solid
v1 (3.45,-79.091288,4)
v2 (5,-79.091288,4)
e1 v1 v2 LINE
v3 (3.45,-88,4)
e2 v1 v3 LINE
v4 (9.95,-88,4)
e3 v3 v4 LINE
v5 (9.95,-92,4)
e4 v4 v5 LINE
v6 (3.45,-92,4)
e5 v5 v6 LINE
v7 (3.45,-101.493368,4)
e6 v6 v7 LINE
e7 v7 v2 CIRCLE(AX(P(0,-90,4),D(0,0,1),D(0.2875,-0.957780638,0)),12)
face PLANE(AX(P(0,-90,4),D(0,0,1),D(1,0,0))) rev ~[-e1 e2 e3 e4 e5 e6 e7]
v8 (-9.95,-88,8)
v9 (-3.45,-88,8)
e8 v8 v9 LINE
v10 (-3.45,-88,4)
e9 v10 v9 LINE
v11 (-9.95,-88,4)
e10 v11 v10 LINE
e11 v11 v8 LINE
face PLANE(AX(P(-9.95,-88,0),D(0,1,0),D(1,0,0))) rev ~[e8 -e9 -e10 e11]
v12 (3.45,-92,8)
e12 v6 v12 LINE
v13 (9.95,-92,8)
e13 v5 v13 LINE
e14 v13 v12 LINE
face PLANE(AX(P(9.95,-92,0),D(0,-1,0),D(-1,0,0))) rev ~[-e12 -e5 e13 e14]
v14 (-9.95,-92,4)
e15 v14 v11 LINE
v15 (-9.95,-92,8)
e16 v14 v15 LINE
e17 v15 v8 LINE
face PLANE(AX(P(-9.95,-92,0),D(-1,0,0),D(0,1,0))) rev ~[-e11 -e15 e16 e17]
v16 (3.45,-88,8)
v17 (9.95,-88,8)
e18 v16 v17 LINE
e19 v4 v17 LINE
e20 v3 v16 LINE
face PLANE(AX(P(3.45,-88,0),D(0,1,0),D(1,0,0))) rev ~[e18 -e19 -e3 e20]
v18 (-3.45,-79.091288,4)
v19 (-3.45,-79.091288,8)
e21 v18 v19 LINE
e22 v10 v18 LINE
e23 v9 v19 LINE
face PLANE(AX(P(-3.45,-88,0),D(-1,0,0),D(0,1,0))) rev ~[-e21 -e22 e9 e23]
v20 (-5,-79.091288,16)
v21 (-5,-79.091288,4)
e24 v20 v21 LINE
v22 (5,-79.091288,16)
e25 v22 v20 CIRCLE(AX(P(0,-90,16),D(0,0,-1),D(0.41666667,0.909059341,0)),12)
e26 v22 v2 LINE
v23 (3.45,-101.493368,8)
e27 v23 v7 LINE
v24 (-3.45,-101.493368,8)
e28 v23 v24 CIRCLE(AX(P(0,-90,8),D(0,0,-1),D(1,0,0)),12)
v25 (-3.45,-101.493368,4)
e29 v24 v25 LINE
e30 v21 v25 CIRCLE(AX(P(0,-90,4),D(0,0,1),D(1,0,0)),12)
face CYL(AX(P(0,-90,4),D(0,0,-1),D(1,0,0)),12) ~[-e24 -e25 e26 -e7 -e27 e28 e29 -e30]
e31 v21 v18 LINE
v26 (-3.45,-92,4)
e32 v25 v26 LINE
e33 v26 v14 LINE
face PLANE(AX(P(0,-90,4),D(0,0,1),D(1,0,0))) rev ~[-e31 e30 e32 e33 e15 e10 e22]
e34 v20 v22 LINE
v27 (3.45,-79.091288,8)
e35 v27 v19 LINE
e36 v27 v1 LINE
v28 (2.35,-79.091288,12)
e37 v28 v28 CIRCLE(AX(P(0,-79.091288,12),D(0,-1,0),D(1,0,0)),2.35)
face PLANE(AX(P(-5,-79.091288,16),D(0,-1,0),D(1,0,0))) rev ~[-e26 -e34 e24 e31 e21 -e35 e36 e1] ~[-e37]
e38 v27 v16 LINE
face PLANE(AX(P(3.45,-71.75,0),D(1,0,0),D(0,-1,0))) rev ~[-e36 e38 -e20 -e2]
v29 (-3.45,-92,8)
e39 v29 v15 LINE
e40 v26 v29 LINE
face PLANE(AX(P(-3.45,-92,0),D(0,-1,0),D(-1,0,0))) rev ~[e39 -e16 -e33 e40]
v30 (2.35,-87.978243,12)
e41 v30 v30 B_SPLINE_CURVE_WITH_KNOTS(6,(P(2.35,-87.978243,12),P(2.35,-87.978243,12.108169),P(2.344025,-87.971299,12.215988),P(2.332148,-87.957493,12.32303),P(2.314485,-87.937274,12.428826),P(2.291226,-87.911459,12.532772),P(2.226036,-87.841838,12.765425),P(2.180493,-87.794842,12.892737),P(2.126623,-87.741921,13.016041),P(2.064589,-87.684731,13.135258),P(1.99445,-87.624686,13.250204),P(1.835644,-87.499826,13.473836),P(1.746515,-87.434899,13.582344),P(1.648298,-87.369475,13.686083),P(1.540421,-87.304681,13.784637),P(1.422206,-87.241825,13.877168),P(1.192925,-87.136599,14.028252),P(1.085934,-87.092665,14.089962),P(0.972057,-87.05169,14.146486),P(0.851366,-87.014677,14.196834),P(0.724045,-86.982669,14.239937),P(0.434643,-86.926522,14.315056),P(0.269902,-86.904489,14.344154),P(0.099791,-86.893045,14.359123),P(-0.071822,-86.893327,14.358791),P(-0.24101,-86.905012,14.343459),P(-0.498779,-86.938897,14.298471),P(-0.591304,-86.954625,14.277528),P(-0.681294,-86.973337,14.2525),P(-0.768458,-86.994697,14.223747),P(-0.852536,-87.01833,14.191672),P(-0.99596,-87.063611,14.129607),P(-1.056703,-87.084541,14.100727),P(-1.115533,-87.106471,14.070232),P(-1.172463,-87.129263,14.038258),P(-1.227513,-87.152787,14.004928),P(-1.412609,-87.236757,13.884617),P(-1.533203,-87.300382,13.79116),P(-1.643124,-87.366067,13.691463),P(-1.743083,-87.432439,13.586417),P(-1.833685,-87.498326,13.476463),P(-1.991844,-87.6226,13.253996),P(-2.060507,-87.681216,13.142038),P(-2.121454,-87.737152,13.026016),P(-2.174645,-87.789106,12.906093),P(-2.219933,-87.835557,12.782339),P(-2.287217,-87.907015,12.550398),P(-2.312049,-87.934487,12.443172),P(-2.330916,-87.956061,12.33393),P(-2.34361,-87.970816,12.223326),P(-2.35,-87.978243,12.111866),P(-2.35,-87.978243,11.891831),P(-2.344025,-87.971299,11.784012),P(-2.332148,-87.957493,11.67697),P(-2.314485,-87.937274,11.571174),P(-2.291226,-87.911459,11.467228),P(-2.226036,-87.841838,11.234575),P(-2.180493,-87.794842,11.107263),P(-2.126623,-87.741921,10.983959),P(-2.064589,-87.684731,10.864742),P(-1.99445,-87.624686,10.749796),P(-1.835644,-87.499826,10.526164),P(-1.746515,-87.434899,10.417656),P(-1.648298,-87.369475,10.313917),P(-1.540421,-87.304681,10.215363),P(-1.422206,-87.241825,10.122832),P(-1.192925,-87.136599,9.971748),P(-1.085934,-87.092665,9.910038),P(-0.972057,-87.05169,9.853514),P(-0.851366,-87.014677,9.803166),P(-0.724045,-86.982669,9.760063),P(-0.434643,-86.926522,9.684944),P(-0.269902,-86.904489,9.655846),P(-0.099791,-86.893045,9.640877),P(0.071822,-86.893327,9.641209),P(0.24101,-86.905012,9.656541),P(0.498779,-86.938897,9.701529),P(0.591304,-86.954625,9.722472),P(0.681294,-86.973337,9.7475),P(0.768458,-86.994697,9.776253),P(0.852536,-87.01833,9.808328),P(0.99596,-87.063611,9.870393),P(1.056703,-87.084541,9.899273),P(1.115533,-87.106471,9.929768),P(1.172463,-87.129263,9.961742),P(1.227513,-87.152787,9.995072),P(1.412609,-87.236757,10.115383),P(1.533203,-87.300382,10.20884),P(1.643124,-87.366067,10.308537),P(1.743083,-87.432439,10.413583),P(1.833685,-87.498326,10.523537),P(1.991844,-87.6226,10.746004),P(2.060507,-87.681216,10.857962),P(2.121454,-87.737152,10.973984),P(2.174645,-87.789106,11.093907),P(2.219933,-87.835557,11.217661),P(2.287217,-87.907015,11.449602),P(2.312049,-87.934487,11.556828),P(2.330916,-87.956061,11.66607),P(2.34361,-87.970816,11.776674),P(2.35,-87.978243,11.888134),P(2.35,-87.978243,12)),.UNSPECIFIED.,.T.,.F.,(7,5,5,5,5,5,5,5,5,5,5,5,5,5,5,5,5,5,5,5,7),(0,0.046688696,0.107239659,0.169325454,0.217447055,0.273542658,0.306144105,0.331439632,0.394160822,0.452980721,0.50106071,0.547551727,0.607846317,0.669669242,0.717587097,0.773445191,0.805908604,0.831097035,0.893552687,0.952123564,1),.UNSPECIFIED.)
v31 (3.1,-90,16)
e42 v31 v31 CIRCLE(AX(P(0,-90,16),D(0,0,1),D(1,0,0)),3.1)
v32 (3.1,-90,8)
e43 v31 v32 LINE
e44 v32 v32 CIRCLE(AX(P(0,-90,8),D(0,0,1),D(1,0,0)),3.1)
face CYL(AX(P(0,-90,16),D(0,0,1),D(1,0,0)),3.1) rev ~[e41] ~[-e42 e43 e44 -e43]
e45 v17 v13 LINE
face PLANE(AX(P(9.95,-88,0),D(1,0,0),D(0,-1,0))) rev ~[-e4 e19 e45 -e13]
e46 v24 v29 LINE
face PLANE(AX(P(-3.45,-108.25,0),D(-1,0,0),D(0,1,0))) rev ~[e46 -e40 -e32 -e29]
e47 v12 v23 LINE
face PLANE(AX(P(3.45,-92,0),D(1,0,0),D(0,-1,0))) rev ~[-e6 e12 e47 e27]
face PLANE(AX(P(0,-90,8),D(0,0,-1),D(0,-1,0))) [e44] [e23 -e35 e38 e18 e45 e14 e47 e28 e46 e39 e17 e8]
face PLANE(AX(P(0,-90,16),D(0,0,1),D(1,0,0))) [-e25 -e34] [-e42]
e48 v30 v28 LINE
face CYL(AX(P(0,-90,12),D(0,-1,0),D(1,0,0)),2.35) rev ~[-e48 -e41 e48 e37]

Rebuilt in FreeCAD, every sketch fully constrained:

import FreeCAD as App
import Part
import Sketcher
Q = App.Units.Quantity


def add_polygon(sketch, points):
    """Adds a closed chain of lines whose ends are joined by coincident constraints."""
    first, n = sketch.GeometryCount, len(points)
    for a, b in zip(points, points[1:] + points[:1]):
        sketch.addGeometry(Part.LineSegment(App.Vector(*a, 0), App.Vector(*b, 0)), False)
    for i in range(n):
        sketch.addConstraint(Sketcher.Constraint("Coincident", first + i, 2, first + (i + 1) % n, 1))

doc = App.newDocument("Part")
params = doc.addObject("Spreadsheet::Sheet", "Params")
for row, (alias, value) in enumerate([
    ("sketch1_height", "4 mm"),
    ("sketch1_width", "6.5 mm"),
    ("sketch1_width2", "6.9 mm"),
    ("sketch1_height2", "16.25 mm"),
    ("pad1_length", "4 mm"),
    ("sketch2_diameter", "24 mm"),
    ("pad2_length", "12 mm"),
    ("sketch3_height", "4 mm"),
    ("sketch3_width", "6.9 mm"),
    ("sketch3_width2", "6.5 mm"),
    ("sketch3_height2", "16.25 mm"),
    ("pocket1_length", "8 mm"),
    ("sketch4_diameter", "6.2 mm"),
    ("sketch5_diameter", "4.7 mm"),
    ("sketch6_width", "10 mm"),
], start=1):
    params.set(f"A{row}", alias)
    params.set(f"B{row}", "=" + value)
    params.setAlias(f"B{row}", alias)

body = doc.addObject("PartDesign::Body", "Body")

# Sketch on XY plane
sketch1 = body.newObject("Sketcher::SketchObject", "Sketch")
sketch1.AttachmentSupport = (doc.getObject("XY_Plane"), [""])
sketch1.MapMode = "FlatFace"
add_polygon(sketch1, [(-3.5, 18.2), (-3.5, 2), (-9.9, 2), (-9.9, -2), (-3.5, -2), (-3.5, -18.2), (3.5, -18.2), (3.5, -2), (9.9, -2), (9.9, 2), (3.5, 2), (3.5, 18.2)])  # lines 0-11
sketch1.addConstraint(Sketcher.Constraint("Vertical", 0))
sketch1.addConstraint(Sketcher.Constraint("Horizontal", 1))
sketch1.addConstraint(Sketcher.Constraint("Vertical", 2))
sketch1.addConstraint(Sketcher.Constraint("Horizontal", 3))
sketch1.addConstraint(Sketcher.Constraint("Vertical", 4))
sketch1.addConstraint(Sketcher.Constraint("Horizontal", 5))
sketch1.addConstraint(Sketcher.Constraint("Vertical", 6))
sketch1.addConstraint(Sketcher.Constraint("Horizontal", 7))
sketch1.addConstraint(Sketcher.Constraint("Vertical", 8))
sketch1.addConstraint(Sketcher.Constraint("Horizontal", 9))
sketch1.addConstraint(Sketcher.Constraint("Vertical", 10))
sketch1.addConstraint(Sketcher.Constraint("Horizontal", 11))
sketch1.addConstraint(Sketcher.Constraint("Symmetric", 0, 2, 6, 2, -1, 1))
sketch1.addConstraint(Sketcher.Constraint("Symmetric", 2, 2, 8, 2, -1, 1))
sketch1.addConstraint(Sketcher.Constraint("Symmetric", 4, 2, 10, 2, -1, 1))
sketch1.addConstraint(Sketcher.Constraint("Symmetric", 3, 2, 6, 2, -2))
sketch1.addConstraint(Sketcher.Constraint("DistanceY", 2, 2, 2, 1, Q("4 mm")))
sketch1.addConstraint(Sketcher.Constraint("DistanceX", 1, 2, 1, 1, Q("6.5 mm")))
sketch1.addConstraint(Sketcher.Constraint("DistanceX", 5, 1, 5, 2, Q("6.9 mm")))
sketch1.addConstraint(Sketcher.Constraint("DistanceY", 0, 2, 0, 1, Q("16.25 mm")))
sketch1.setExpression("Constraints[28]", "Params.sketch1_height")
sketch1.setExpression("Constraints[29]", "Params.sketch1_width")
sketch1.setExpression("Constraints[30]", "Params.sketch1_width2")
sketch1.setExpression("Constraints[31]", "Params.sketch1_height2")
pad1 = body.newObject("PartDesign::Pad", "Pad")
pad1.Profile = sketch1
pad1.setExpression("Length", "Params.pad1_length")

# Sketch on XY plane
sketch2 = body.newObject("Sketcher::SketchObject", "Sketch001")
sketch2.AttachmentSupport = (doc.getObject("XY_Plane"), [""])
sketch2.MapMode = "FlatFace"
sketch2.AttachmentOffset = App.Placement(App.Vector(0, 0, 4), App.Rotation())
sketch2.addGeometry(Part.Circle(App.Vector(0, 0, 0), App.Vector(0, 0, 1), 12), False)
sketch2.addConstraint(Sketcher.Constraint("Coincident", 0, 3, -1, 1))
sketch2.addConstraint(Sketcher.Constraint("Diameter", 0, Q("24 mm")))
sketch2.setExpression("Constraints[1]", "Params.sketch2_diameter")
pad2 = body.newObject("PartDesign::Pad", "Pad001")
pad2.Profile = sketch2
pad2.setExpression("Length", "Params.pad2_length")

# Sketch on XY plane
sketch3 = body.newObject("Sketcher::SketchObject", "Sketch002")
sketch3.AttachmentSupport = (doc.getObject("XY_Plane"), [""])
sketch3.MapMode = "FlatFace"
add_polygon(sketch3, [(-3.5, 2), (-3.5, 18.2), (3.5, 18.2), (3.5, 2), (9.9, 2), (9.9, -2), (3.5, -2), (3.5, -18.2), (-3.5, -18.2), (-3.5, -2), (-9.9, -2), (-9.9, 2)])  # lines 0-11
sketch3.addConstraint(Sketcher.Constraint("Vertical", 0))
sketch3.addConstraint(Sketcher.Constraint("Horizontal", 1))
sketch3.addConstraint(Sketcher.Constraint("Vertical", 2))
sketch3.addConstraint(Sketcher.Constraint("Horizontal", 3))
sketch3.addConstraint(Sketcher.Constraint("Vertical", 4))
sketch3.addConstraint(Sketcher.Constraint("Horizontal", 5))
sketch3.addConstraint(Sketcher.Constraint("Vertical", 6))
sketch3.addConstraint(Sketcher.Constraint("Horizontal", 7))
sketch3.addConstraint(Sketcher.Constraint("Vertical", 8))
sketch3.addConstraint(Sketcher.Constraint("Horizontal", 9))
sketch3.addConstraint(Sketcher.Constraint("Vertical", 10))
sketch3.addConstraint(Sketcher.Constraint("Horizontal", 11))
sketch3.addConstraint(Sketcher.Constraint("Symmetric", 0, 2, 6, 2, -1, 1))
sketch3.addConstraint(Sketcher.Constraint("Symmetric", 2, 2, 8, 2, -1, 1))
sketch3.addConstraint(Sketcher.Constraint("Symmetric", 4, 2, 10, 2, -1, 1))
sketch3.addConstraint(Sketcher.Constraint("Symmetric", 5, 2, 8, 2, -2))
sketch3.addConstraint(Sketcher.Constraint("DistanceY", 4, 2, 4, 1, Q("4 mm")))
sketch3.addConstraint(Sketcher.Constraint("DistanceX", 1, 1, 1, 2, Q("6.9 mm")))
sketch3.addConstraint(Sketcher.Constraint("DistanceX", 3, 1, 3, 2, Q("6.5 mm")))
sketch3.addConstraint(Sketcher.Constraint("DistanceY", 0, 1, 0, 2, Q("16.25 mm")))
sketch3.setExpression("Constraints[28]", "Params.sketch3_height")
sketch3.setExpression("Constraints[29]", "Params.sketch3_width")
sketch3.setExpression("Constraints[30]", "Params.sketch3_width2")
sketch3.setExpression("Constraints[31]", "Params.sketch3_height2")
pocket1 = body.newObject("PartDesign::Pocket", "Pocket")
pocket1.Profile = sketch3
pocket1.setExpression("Length", "Params.pocket1_length")
pocket1.Reversed = True

# Sketch on XY plane
sketch4 = body.newObject("Sketcher::SketchObject", "Sketch003")
sketch4.AttachmentSupport = (doc.getObject("XY_Plane"), [""])
sketch4.MapMode = "FlatFace"
sketch4.AttachmentOffset = App.Placement(App.Vector(0, 0, 16), App.Rotation())
sketch4.addGeometry(Part.Circle(App.Vector(0, 0, 0), App.Vector(0, 0, 1), 3.1), False)
sketch4.addConstraint(Sketcher.Constraint("Coincident", 0, 3, -1, 1))
sketch4.addConstraint(Sketcher.Constraint("Diameter", 0, Q("6.2 mm")))
sketch4.setExpression("Constraints[1]", "Params.sketch4_diameter")
pocket2 = body.newObject("PartDesign::Pocket", "Pocket001")
pocket2.Profile = sketch4
pocket2.Type = "ThroughAll"

# Sketch on XZ plane
sketch5 = body.newObject("Sketcher::SketchObject", "Sketch004")
sketch5.AttachmentSupport = (doc.getObject("XZ_Plane"), [""])
sketch5.MapMode = "FlatFace"
sketch5.addGeometry(Part.Circle(App.Vector(0, 12, 0), App.Vector(0, 0, 1), 2.4), False)
sketch5.addConstraint(Sketcher.Constraint("PointOnObject", 0, 3, -2))
sketch5.addConstraint(Sketcher.Constraint("Diameter", 0, Q("4.7 mm")))
sketch5.addConstraint(Sketcher.Constraint("DistanceY", -1, 1, 0, 3, Q("12 mm")))
sketch5.setExpression("Constraints[1]", "Params.sketch5_diameter")
pocket3 = body.newObject("PartDesign::Pocket", "Pocket002")
pocket3.Profile = sketch5
pocket3.Type = "ThroughAll"

# Sketch on XY plane
sketch6 = body.newObject("Sketcher::SketchObject", "Sketch005")
sketch6.AttachmentSupport = (doc.getObject("XY_Plane"), [""])
sketch6.MapMode = "FlatFace"
sketch6.AttachmentOffset = App.Placement(App.Vector(0, 0, 16), App.Rotation())
add_polygon(sketch6, [(-5, 17), (-5, 11), (5, 11), (5, 17)])  # lines 0-3
sketch6.addConstraint(Sketcher.Constraint("Vertical", 0))
sketch6.addConstraint(Sketcher.Constraint("Horizontal", 1))
sketch6.addConstraint(Sketcher.Constraint("Vertical", 2))
sketch6.addConstraint(Sketcher.Constraint("Horizontal", 3))
sketch6.addConstraint(Sketcher.Constraint("DistanceX", 1, 1, 1, 2, Q("10 mm")))
sketch6.addConstraint(Sketcher.Constraint("DistanceX", 0, 2, -1, 1, Q("5 mm")))
sketch6.addConstraint(Sketcher.Constraint("DistanceY", 0, 2, 0, 1, Q("6.070738 mm")))
sketch6.addConstraint(Sketcher.Constraint("DistanceY", -1, 1, 2, 2, Q("16.97945 mm")))
sketch6.setExpression("Constraints[8]", "Params.sketch6_width")
pocket4 = body.newObject("PartDesign::Pocket", "Pocket003")
pocket4.Profile = sketch6
pocket4.Type = "ThroughAll"
body2 = doc.addObject("PartDesign::Body", "Body001")
doc.recompute()

body.Placement = App.Placement(App.Vector(0, -90, 0), App.Rotation(App.Vector(0, 0, 1), 0))
boolean = body2.newObject("PartDesign::Boolean", "Boolean")
boolean.Type = "Fuse"
boolean.addObjects([body])

doc.recompute()
